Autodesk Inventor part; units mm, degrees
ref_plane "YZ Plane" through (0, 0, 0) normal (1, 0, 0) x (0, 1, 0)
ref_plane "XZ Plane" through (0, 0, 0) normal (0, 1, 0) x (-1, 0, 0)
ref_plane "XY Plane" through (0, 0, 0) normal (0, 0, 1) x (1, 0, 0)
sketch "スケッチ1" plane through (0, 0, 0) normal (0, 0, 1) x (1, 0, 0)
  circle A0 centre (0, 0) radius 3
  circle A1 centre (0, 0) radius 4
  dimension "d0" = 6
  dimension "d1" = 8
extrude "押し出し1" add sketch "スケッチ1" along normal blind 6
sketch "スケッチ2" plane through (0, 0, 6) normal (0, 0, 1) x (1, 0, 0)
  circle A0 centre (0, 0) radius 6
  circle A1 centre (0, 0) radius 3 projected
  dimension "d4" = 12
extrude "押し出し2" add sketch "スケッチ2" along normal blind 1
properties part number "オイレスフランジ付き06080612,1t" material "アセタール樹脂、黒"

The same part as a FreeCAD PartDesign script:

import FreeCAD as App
import Part
import Sketcher
Q = App.Units.Quantity

doc = App.newDocument("Part")
params = doc.addObject("Spreadsheet::Sheet", "Params")
for row, (alias, value) in enumerate([
    ("sketch1_diameter", "8 mm"),
    ("sketch1_diameter2", "6 mm"),
    ("pad1_length", "6 mm"),
    ("sketch2_diameter", "12 mm"),
    ("sketch2_diameter2", "6 mm"),
    ("pad2_length", "1 mm"),
], start=1):
    params.set(f"A{row}", alias)
    params.set(f"B{row}", "=" + value)
    params.setAlias(f"B{row}", alias)

body = doc.addObject("PartDesign::Body", "Body")

sketch1 = doc.addObject("Sketcher::SketchObject", "Sketch")
body.addObject(sketch1)
sketch1.AttachmentSupport = (doc.XY_Plane, [""])
sketch1.MapMode = "FlatFace"
sketch1.addGeometry([
    Part.Circle(App.Vector(0, 0, 0), App.Vector(0, 0, 1), 4),
    Part.Circle(App.Vector(0, 0, 0), App.Vector(0, 0, 1), 3),
], False)
sketch1.addConstraint([
    Sketcher.Constraint("Coincident", 0, 3, -1, 1),
    Sketcher.Constraint("Coincident", 1, 3, -1, 1),
    Sketcher.Constraint("Diameter", 0, Q("8 mm")),
    Sketcher.Constraint("Diameter", 1, Q("6 mm")),
])
sketch1.setExpression("Constraints[2]", "Params.sketch1_diameter")
sketch1.setExpression("Constraints[3]", "Params.sketch1_diameter2")
pad1 = doc.addObject("PartDesign::Pad", "Pad")
body.addObject(pad1)
pad1.Profile = sketch1
pad1.setExpression("Length", "Params.pad1_length")

sketch2 = doc.addObject("Sketcher::SketchObject", "Sketch001")
body.addObject(sketch2)
sketch2.AttachmentSupport = (doc.XY_Plane, [""])
sketch2.MapMode = "FlatFace"
sketch2.AttachmentOffset = App.Placement(App.Vector(0, 0, 6), App.Rotation())
sketch2.addGeometry([
    Part.Circle(App.Vector(0, 0, 0), App.Vector(0, 0, 1), 6),
    Part.Circle(App.Vector(0, 0, 0), App.Vector(0, 0, 1), 3),
], False)
sketch2.addConstraint([
    Sketcher.Constraint("Coincident", 0, 3, -1, 1),
    Sketcher.Constraint("Coincident", 1, 3, -1, 1),
    Sketcher.Constraint("Diameter", 0, Q("12 mm")),
    Sketcher.Constraint("Diameter", 1, Q("6 mm")),
])
sketch2.setExpression("Constraints[2]", "Params.sketch2_diameter")
sketch2.setExpression("Constraints[3]", "Params.sketch2_diameter2")
pad2 = doc.addObject("PartDesign::Pad", "Pad001")
body.addObject(pad2)
pad2.Profile = sketch2
pad2.setExpression("Length", "Params.pad2_length")

doc.recompute()
